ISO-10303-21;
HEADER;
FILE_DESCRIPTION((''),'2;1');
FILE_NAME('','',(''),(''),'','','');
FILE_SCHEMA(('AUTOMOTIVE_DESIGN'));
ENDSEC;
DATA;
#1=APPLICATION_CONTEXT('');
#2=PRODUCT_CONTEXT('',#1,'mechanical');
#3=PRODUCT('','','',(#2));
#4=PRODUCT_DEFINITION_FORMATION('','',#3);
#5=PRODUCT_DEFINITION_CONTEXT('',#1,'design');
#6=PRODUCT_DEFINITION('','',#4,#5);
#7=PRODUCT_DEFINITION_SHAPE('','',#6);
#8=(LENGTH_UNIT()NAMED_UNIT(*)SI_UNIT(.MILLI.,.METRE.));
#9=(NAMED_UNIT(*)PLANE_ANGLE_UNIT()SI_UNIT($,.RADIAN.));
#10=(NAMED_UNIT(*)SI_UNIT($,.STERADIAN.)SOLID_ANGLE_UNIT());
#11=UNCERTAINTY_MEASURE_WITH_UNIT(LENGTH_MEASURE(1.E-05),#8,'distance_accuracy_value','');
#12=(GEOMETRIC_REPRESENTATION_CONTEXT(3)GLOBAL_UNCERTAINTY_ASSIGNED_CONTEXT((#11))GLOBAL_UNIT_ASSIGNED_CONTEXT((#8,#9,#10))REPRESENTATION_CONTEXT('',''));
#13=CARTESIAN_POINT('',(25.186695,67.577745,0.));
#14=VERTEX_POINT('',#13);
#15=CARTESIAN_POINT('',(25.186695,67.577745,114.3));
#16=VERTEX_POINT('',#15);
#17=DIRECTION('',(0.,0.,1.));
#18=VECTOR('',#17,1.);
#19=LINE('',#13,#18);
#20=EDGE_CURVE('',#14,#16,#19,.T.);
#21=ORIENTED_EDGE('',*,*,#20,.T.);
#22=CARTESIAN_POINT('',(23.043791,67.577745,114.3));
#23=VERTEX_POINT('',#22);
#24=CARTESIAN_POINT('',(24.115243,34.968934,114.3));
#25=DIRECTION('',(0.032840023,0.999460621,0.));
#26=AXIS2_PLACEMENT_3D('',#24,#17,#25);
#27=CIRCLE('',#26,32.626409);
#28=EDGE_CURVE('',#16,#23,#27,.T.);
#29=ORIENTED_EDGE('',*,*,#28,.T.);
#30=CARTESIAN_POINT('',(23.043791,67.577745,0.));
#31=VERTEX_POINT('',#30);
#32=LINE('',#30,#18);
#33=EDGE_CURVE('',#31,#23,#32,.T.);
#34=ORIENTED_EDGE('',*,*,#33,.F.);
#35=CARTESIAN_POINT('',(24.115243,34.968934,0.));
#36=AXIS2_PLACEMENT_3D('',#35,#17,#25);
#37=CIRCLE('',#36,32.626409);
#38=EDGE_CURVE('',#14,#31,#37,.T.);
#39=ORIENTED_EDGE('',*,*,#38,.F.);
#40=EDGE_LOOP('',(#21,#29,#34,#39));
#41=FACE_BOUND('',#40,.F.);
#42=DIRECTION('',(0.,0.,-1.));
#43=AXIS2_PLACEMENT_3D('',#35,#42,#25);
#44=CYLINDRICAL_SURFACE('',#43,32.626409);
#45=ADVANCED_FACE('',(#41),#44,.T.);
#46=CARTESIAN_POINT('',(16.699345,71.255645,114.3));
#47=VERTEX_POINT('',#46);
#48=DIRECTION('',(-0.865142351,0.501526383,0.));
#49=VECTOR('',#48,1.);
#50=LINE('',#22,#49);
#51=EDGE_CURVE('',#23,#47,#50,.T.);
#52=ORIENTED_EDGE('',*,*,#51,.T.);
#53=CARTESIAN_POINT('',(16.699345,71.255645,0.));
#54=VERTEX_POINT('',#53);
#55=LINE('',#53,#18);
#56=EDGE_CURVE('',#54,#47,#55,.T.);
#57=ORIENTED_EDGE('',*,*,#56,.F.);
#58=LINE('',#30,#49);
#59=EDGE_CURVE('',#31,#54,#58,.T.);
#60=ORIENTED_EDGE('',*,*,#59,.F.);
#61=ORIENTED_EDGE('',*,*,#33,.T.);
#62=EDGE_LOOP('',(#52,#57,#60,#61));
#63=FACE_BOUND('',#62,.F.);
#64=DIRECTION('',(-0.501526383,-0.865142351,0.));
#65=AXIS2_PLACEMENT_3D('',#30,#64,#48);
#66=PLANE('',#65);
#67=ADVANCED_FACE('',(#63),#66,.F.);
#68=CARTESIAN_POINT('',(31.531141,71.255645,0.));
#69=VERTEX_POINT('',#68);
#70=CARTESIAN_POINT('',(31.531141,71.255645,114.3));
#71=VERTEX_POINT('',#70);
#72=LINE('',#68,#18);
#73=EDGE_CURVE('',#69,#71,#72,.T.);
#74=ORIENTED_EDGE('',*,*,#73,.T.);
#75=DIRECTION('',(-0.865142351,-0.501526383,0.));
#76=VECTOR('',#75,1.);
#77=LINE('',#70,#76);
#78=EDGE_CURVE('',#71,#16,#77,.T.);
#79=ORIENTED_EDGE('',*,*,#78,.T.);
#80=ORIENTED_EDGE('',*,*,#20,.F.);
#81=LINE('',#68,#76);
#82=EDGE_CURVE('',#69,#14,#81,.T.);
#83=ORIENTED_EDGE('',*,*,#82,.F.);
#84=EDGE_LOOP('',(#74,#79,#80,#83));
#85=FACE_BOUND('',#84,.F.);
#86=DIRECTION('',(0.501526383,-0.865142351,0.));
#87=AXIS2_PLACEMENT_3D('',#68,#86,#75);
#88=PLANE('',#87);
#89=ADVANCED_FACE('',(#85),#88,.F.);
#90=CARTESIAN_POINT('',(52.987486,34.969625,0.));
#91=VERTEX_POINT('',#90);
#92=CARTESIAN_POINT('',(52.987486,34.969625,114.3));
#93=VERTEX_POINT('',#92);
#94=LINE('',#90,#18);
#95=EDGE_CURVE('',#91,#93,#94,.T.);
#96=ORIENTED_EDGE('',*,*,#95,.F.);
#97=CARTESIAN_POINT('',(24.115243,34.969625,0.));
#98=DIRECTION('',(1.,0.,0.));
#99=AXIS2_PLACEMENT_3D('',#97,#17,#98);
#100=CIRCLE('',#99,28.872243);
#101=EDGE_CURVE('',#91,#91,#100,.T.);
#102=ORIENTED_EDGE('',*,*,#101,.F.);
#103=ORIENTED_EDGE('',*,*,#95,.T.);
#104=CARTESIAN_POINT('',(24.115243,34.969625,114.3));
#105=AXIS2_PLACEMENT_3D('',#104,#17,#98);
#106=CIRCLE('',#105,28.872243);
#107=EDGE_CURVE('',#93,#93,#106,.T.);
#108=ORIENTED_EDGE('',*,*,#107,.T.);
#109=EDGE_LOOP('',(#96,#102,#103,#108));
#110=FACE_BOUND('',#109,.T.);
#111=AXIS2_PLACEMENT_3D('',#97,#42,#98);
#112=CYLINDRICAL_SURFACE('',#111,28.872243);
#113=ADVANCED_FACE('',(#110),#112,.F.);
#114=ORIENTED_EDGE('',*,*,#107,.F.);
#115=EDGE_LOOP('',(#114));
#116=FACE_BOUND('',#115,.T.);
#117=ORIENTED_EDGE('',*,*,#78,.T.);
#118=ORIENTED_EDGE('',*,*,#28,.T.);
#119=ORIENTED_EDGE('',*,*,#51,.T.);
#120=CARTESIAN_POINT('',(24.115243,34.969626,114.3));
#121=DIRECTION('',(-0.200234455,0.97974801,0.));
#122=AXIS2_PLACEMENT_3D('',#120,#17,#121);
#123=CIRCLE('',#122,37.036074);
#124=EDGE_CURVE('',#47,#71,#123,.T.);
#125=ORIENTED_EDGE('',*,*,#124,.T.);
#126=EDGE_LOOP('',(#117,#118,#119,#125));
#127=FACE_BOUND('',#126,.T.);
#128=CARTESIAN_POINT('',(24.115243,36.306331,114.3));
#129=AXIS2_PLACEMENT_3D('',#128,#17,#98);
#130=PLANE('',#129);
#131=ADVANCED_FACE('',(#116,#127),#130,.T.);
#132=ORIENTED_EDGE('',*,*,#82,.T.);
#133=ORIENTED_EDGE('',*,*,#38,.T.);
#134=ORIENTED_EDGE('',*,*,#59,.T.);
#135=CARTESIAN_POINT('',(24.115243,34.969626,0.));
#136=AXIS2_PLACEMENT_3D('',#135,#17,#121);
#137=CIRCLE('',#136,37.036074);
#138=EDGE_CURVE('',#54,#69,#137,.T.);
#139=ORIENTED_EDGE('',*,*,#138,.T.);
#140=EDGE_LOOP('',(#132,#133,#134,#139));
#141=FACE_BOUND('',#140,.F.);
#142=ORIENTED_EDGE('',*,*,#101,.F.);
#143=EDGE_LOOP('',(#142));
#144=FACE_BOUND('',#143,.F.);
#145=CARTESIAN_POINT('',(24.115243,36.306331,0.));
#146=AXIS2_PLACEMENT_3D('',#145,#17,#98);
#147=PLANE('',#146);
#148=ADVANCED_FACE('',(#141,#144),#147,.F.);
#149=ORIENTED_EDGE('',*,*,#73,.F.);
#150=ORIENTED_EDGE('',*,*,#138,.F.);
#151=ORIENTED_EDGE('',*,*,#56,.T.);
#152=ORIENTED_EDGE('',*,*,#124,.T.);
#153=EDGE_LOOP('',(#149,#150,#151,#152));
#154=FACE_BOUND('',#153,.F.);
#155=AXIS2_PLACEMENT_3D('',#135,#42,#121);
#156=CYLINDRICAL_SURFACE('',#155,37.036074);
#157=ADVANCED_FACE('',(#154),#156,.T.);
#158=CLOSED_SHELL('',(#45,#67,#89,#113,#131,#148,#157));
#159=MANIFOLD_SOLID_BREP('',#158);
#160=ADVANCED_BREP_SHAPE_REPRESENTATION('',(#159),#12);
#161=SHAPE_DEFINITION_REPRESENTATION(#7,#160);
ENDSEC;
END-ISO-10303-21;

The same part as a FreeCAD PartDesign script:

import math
import FreeCAD as App
import Part
import Sketcher
Q = App.Units.Quantity

doc = App.newDocument("Part")
body = doc.addObject("PartDesign::Body", "Body")

sketch1 = body.newObject("Sketcher::SketchObject", "Sketch")
sketch1.AttachmentSupport = (doc.getObject("XY_Plane"), [""])
sketch1.MapMode = "FlatFace"
sketch1.addGeometry([
    Part.ArcOfCircle(Part.Circle(App.Vector(24.115243, 34.969626, 0), App.Vector(0, 0, 1), 37.036074), math.radians(101.55067), math.radians(438.44933)),
    Part.LineSegment(App.Vector(31.531141, 71.255645, 0), App.Vector(25.186695, 67.577745, 0)),
    Part.ArcOfCircle(Part.Circle(App.Vector(24.115243, 34.968934, 0), App.Vector(0, 0, 1), 32.626409), math.radians(88.118067), math.radians(91.881933)),
    Part.LineSegment(App.Vector(23.043791, 67.577745, 0), App.Vector(16.699345, 71.255645, 0)),
    Part.Circle(App.Vector(24.115243, 34.969625, 0), App.Vector(0, 0, 1), 28.872243),
], False)
sketch1.addConstraint([
    Sketcher.Constraint("Coincident", 0, 2, 1, 1),
    Sketcher.Constraint("Coincident", 1, 2, 2, 1),
    Sketcher.Constraint("Coincident", 2, 2, 3, 1),
    Sketcher.Constraint("Coincident", 3, 2, 0, 1),
    Sketcher.Constraint("Coincident", 4, 3, 0, 3),
    Sketcher.Constraint("Horizontal", 1, 2, 2, 2),
    Sketcher.Constraint("Horizontal", 0, 2, 3, 2),
    Sketcher.Constraint("Vertical", 0, 3, 2, 3),
    Sketcher.Constraint("Radius", 2, Q("32.626409 mm")),
    Sketcher.Constraint("Diameter", 4, Q("57.744486 mm")),
    Sketcher.Constraint("Radius", 0, Q("37.036074 mm")),
    Sketcher.Constraint("DistanceY", 1, 2, 0, 2, Q("3.6779 mm")),
    Sketcher.Constraint("DistanceX", -1, 1, 0, 2, Q("31.531141 mm")),
    Sketcher.Constraint("DistanceX", -1, 1, 2, 2, Q("23.043791 mm")),
    Sketcher.Constraint("DistanceY", 2, 3, 0, 3, Q("0.000691 mm")),
    Sketcher.Constraint("DistanceY", -1, 1, 0, 3, Q("34.969626 mm")),
])
pad1 = body.newObject("PartDesign::Pad", "Pad")
pad1.Profile = sketch1
pad1.Length = Q("4.5 in")

doc.recompute()
